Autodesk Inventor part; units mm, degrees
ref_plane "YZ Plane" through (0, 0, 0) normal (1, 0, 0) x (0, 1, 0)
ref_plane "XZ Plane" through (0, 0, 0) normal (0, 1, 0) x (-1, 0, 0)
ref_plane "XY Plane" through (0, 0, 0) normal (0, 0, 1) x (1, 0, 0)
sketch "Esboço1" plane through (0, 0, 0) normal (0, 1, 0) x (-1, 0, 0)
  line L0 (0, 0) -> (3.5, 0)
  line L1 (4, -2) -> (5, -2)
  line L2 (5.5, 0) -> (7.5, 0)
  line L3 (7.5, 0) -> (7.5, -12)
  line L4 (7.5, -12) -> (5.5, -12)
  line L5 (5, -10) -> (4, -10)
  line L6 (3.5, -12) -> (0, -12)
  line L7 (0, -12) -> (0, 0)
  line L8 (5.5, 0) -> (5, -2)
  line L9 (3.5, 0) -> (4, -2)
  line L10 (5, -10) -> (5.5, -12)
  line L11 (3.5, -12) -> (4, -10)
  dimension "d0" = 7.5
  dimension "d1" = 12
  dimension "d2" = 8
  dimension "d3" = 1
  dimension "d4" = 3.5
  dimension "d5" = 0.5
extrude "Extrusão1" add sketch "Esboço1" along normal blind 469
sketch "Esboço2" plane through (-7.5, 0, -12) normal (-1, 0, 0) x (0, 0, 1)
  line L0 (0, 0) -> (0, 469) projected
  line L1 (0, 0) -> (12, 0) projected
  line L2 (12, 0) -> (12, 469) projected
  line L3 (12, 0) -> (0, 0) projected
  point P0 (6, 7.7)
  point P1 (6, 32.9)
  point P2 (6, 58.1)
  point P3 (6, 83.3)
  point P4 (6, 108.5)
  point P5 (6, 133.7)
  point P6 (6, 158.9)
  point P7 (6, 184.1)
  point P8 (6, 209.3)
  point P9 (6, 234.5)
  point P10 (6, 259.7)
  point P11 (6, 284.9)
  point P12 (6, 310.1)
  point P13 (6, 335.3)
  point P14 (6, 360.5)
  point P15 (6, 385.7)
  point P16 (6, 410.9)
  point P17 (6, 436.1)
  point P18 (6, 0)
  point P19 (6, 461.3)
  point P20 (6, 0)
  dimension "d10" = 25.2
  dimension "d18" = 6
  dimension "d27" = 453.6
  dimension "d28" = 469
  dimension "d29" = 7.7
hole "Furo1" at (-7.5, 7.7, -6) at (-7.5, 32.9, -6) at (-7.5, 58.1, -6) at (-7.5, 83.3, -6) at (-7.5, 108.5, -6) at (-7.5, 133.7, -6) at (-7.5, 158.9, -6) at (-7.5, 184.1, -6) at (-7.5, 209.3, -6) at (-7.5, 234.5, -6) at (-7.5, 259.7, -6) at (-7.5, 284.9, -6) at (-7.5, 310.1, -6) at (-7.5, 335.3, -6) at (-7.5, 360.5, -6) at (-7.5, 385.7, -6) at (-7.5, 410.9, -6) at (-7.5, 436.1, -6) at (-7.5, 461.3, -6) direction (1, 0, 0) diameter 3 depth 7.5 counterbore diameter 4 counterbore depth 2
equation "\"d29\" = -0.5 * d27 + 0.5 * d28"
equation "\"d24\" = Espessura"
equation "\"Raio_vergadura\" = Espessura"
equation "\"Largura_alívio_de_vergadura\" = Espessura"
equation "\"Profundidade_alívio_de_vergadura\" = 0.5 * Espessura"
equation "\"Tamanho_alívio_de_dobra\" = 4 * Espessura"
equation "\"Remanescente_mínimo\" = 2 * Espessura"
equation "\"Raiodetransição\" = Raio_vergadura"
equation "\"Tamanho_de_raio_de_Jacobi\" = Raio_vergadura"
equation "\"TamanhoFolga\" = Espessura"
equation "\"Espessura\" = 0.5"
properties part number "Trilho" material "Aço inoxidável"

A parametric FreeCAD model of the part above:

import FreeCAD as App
import Part
import Sketcher

V = App.Vector


def add_polygon(sketch, points):
    """Adds a closed chain of lines whose ends are joined by coincident constraints."""
    first, n = sketch.GeometryCount, len(points)
    for a, b in zip(points, points[1:] + points[:1]):
        sketch.addGeometry(Part.LineSegment(App.Vector(*a, 0), App.Vector(*b, 0)), False)
    for i in range(n):
        sketch.addConstraint(Sketcher.Constraint("Coincident", first + i, 2, first + (i + 1) % n, 1))

doc = App.newDocument("Part")
params = doc.addObject("Spreadsheet::Sheet", "Params")
for row, (alias, value) in enumerate([
    ("sketch1_width", "1 mm"),
    ("sketch1_height", "12 mm"),
    ("sketch1_width2", "3.5 mm"),
    ("pad1_length", "469 mm"),
    ("sketch2_diameter", "3 mm"),
    ("hole_diameter", "3 mm"),
    ("hole_depth", "7.5 mm"),
    ("hole_cbore_diameter", "4 mm"),
    ("hole_cbore_depth", "2 mm"),
], start=1):
    params.set(f"A{row}", alias)
    params.set(f"B{row}", "=" + value)
    params.setAlias(f"B{row}", alias)

body = doc.addObject("PartDesign::Body", "Body")

sketch1 = doc.addObject("Sketcher::SketchObject", "Sketch")
body.addObject(sketch1)
sketch1.AttachmentSupport = (doc.XZ_Plane, [""])
sketch1.MapMode = "FlatFace"
add_polygon(sketch1, [(-3.5, 0), (0, 0), (0, -12), (-3.5, -12), (-4, -10), (-5, -10), (-5.5, -12), (-7.5, -12), (-7.5, 0), (-5.5, 0), (-5, -2), (-4, -2)])
sketch1.addConstraint([
    Sketcher.Constraint("Horizontal", 0),
    Sketcher.Constraint("Vertical", 1),
    Sketcher.Constraint("Horizontal", 2),
    Sketcher.Constraint("Horizontal", 4),
    Sketcher.Constraint("Horizontal", 6),
    Sketcher.Constraint("Vertical", 7),
    Sketcher.Constraint("Horizontal", 8),
    Sketcher.Constraint("Horizontal", 10),
    Sketcher.Constraint("Coincident", 0, 2, -1, 1),
    Sketcher.Constraint("PointOnObject", 7, 2, -1),
    Sketcher.Constraint("Parallel", 3, 9),
    Sketcher.Constraint("Parallel", 5, 11),
    Sketcher.Constraint("Horizontal", 2, 2, 5, 2),
    Sketcher.Constraint("Vertical", 5, 2, 8, 2),
    Sketcher.Constraint("Vertical", 4, 2, 9, 2),
    Sketcher.Constraint("Vertical", 3, 2, 10, 2),
    Sketcher.Constraint("Vertical", 2, 2, 11, 2),
    Sketcher.Constraint("DistanceX", 4, 2, 4, 1, 1.0),
    Sketcher.Constraint("DistanceY", 1, 2, 1, 1, 12.0),
    Sketcher.Constraint("DistanceX", 0, 1, 0, 2, 3.5),
    Sketcher.Constraint("DistanceY", 4, 2, 9, 2, 8.0),
    Sketcher.Constraint("DistanceX", 6, 2, -1, 1, 7.5),
    Sketcher.Constraint("DistanceX", 3, 2, 2, 2, 0.5),
])
sketch1.setExpression("Constraints[29]", "Params.sketch1_width")
sketch1.setExpression("Constraints[30]", "Params.sketch1_height")
sketch1.setExpression("Constraints[31]", "Params.sketch1_width2")
pad1 = doc.addObject("PartDesign::Pad", "Pad")
body.addObject(pad1)
pad1.Profile = sketch1
pad1.setExpression("Length", "Params.pad1_length")
pad1.Reversed = True

sketch2 = doc.addObject("Sketcher::SketchObject", "Sketch001")
body.addObject(sketch2)
sketch2.AttachmentSupport = (doc.YZ_Plane, [""])
sketch2.MapMode = "FlatFace"
sketch2.AttachmentOffset = App.Placement(V(0, 0, -7.5), App.Rotation())
sketch2.addGeometry([
    Part.Circle(V(7.7, -6, 0), V(0, 0, 1), 1.5),
    Part.Circle(V(32.9, -6, 0), V(0, 0, 1), 1.5),
    Part.Circle(V(58.1, -6, 0), V(0, 0, 1), 1.5),
    Part.Circle(V(83.3, -6, 0), V(0, 0, 1), 1.5),
    Part.Circle(V(108.5, -6, 0), V(0, 0, 1), 1.5),
    Part.Circle(V(133.7, -6, 0), V(0, 0, 1), 1.5),
    Part.Circle(V(158.9, -6, 0), V(0, 0, 1), 1.5),
    Part.Circle(V(184.1, -6, 0), V(0, 0, 1), 1.5),
    Part.Circle(V(209.3, -6, 0), V(0, 0, 1), 1.5),
    Part.Circle(V(234.5, -6, 0), V(0, 0, 1), 1.5),
    Part.Circle(V(259.7, -6, 0), V(0, 0, 1), 1.5),
    Part.Circle(V(284.9, -6, 0), V(0, 0, 1), 1.5),
    Part.Circle(V(310.1, -6, 0), V(0, 0, 1), 1.5),
    Part.Circle(V(335.3, -6, 0), V(0, 0, 1), 1.5),
    Part.Circle(V(360.5, -6, 0), V(0, 0, 1), 1.5),
    Part.Circle(V(385.7, -6, 0), V(0, 0, 1), 1.5),
    Part.Circle(V(410.9, -6, 0), V(0, 0, 1), 1.5),
    Part.Circle(V(436.1, -6, 0), V(0, 0, 1), 1.5),
    Part.Circle(V(461.3, -6, 0), V(0, 0, 1), 1.5),
], False)
sketch2.addConstraint([
    Sketcher.Constraint("Equal", 0, 1),
    Sketcher.Constraint("Equal", 1, 2),
    Sketcher.Constraint("Equal", 2, 3),
    Sketcher.Constraint("Equal", 3, 4),
    Sketcher.Constraint("Equal", 4, 5),
    Sketcher.Constraint("Equal", 5, 6),
    Sketcher.Constraint("Equal", 6, 7),
    Sketcher.Constraint("Equal", 7, 8),
    Sketcher.Constraint("Equal", 8, 9),
    Sketcher.Constraint("Equal", 9, 10),
    Sketcher.Constraint("Equal", 10, 11),
    Sketcher.Constraint("Equal", 11, 12),
    Sketcher.Constraint("Equal", 12, 13),
    Sketcher.Constraint("Equal", 13, 14),
    Sketcher.Constraint("Equal", 14, 15),
    Sketcher.Constraint("Equal", 15, 16),
    Sketcher.Constraint("Equal", 16, 17),
    Sketcher.Constraint("Equal", 17, 18),
    Sketcher.Constraint("Horizontal", 0, 3, 1, 3),
    Sketcher.Constraint("Horizontal", 1, 3, 2, 3),
    Sketcher.Constraint("Horizontal", 2, 3, 3, 3),
    Sketcher.Constraint("Horizontal", 3, 3, 4, 3),
    Sketcher.Constraint("Horizontal", 4, 3, 5, 3),
    Sketcher.Constraint("Horizontal", 5, 3, 6, 3),
    Sketcher.Constraint("Horizontal", 6, 3, 7, 3),
    Sketcher.Constraint("Horizontal", 7, 3, 8, 3),
    Sketcher.Constraint("Horizontal", 8, 3, 9, 3),
    Sketcher.Constraint("Horizontal", 9, 3, 10, 3),
    Sketcher.Constraint("Horizontal", 10, 3, 11, 3),
    Sketcher.Constraint("Horizontal", 11, 3, 12, 3),
    Sketcher.Constraint("Horizontal", 12, 3, 13, 3),
    Sketcher.Constraint("Horizontal", 13, 3, 14, 3),
    Sketcher.Constraint("Horizontal", 14, 3, 15, 3),
    Sketcher.Constraint("Horizontal", 15, 3, 16, 3),
    Sketcher.Constraint("Horizontal", 16, 3, 17, 3),
    Sketcher.Constraint("Horizontal", 17, 3, 18, 3),
    Sketcher.Constraint("Diameter", 0, 3.0),
    Sketcher.Constraint("DistanceY", 0, 3, -1, 1, 6.0),
    Sketcher.Constraint("DistanceX", 0, 3, 5, 3, 126.0),
    Sketcher.Constraint("DistanceX", 1, 3, 6, 3, 126.0),
    Sketcher.Constraint("DistanceX", 2, 3, 7, 3, 126.0),
    Sketcher.Constraint("DistanceX", 3, 3, 8, 3, 126.0),
    Sketcher.Constraint("DistanceX", 4, 3, 9, 3, 126.0),
    Sketcher.Constraint("DistanceX", 5, 3, 10, 3, 126.0),
    Sketcher.Constraint("DistanceX", 6, 3, 11, 3, 126.0),
    Sketcher.Constraint("DistanceX", 7, 3, 12, 3, 126.0),
    Sketcher.Constraint("DistanceX", 8, 3, 13, 3, 126.0),
    Sketcher.Constraint("DistanceX", 9, 3, 14, 3, 126.0),
    Sketcher.Constraint("DistanceX", 10, 3, 15, 3, 126.0),
    Sketcher.Constraint("DistanceX", 11, 3, 16, 3, 126.0),
    Sketcher.Constraint("DistanceX", 12, 3, 17, 3, 126.0),
    Sketcher.Constraint("DistanceX", 13, 3, 18, 3, 126.0),
    Sketcher.Constraint("DistanceX", -1, 1, 0, 3, 7.7),
    Sketcher.Constraint("DistanceX", -1, 1, 1, 3, 32.9),
    Sketcher.Constraint("DistanceX", -1, 1, 2, 3, 58.1),
    Sketcher.Constraint("DistanceX", -1, 1, 3, 3, 83.3),
    Sketcher.Constraint("DistanceX", -1, 1, 4, 3, 108.5),
])
sketch2.setExpression("Constraints[36]", "Params.sketch2_diameter")
doc.recompute()
hole = doc.addObject("PartDesign::Hole", "Hole")
body.addObject(hole)
hole.Profile = sketch2
hole.ThreadType = "None"
hole.setExpression("Diameter", "Params.hole_diameter")
hole.DepthType = "Dimension"
hole.setExpression("Depth", "Params.hole_depth")
hole.DrillPoint = "Flat"
hole.HoleCutType = "Counterbore"
hole.setExpression("HoleCutDiameter", "Params.hole_cbore_diameter")
hole.setExpression("HoleCutDepth", "Params.hole_cbore_depth")
hole.Reversed = True

doc.recompute()
